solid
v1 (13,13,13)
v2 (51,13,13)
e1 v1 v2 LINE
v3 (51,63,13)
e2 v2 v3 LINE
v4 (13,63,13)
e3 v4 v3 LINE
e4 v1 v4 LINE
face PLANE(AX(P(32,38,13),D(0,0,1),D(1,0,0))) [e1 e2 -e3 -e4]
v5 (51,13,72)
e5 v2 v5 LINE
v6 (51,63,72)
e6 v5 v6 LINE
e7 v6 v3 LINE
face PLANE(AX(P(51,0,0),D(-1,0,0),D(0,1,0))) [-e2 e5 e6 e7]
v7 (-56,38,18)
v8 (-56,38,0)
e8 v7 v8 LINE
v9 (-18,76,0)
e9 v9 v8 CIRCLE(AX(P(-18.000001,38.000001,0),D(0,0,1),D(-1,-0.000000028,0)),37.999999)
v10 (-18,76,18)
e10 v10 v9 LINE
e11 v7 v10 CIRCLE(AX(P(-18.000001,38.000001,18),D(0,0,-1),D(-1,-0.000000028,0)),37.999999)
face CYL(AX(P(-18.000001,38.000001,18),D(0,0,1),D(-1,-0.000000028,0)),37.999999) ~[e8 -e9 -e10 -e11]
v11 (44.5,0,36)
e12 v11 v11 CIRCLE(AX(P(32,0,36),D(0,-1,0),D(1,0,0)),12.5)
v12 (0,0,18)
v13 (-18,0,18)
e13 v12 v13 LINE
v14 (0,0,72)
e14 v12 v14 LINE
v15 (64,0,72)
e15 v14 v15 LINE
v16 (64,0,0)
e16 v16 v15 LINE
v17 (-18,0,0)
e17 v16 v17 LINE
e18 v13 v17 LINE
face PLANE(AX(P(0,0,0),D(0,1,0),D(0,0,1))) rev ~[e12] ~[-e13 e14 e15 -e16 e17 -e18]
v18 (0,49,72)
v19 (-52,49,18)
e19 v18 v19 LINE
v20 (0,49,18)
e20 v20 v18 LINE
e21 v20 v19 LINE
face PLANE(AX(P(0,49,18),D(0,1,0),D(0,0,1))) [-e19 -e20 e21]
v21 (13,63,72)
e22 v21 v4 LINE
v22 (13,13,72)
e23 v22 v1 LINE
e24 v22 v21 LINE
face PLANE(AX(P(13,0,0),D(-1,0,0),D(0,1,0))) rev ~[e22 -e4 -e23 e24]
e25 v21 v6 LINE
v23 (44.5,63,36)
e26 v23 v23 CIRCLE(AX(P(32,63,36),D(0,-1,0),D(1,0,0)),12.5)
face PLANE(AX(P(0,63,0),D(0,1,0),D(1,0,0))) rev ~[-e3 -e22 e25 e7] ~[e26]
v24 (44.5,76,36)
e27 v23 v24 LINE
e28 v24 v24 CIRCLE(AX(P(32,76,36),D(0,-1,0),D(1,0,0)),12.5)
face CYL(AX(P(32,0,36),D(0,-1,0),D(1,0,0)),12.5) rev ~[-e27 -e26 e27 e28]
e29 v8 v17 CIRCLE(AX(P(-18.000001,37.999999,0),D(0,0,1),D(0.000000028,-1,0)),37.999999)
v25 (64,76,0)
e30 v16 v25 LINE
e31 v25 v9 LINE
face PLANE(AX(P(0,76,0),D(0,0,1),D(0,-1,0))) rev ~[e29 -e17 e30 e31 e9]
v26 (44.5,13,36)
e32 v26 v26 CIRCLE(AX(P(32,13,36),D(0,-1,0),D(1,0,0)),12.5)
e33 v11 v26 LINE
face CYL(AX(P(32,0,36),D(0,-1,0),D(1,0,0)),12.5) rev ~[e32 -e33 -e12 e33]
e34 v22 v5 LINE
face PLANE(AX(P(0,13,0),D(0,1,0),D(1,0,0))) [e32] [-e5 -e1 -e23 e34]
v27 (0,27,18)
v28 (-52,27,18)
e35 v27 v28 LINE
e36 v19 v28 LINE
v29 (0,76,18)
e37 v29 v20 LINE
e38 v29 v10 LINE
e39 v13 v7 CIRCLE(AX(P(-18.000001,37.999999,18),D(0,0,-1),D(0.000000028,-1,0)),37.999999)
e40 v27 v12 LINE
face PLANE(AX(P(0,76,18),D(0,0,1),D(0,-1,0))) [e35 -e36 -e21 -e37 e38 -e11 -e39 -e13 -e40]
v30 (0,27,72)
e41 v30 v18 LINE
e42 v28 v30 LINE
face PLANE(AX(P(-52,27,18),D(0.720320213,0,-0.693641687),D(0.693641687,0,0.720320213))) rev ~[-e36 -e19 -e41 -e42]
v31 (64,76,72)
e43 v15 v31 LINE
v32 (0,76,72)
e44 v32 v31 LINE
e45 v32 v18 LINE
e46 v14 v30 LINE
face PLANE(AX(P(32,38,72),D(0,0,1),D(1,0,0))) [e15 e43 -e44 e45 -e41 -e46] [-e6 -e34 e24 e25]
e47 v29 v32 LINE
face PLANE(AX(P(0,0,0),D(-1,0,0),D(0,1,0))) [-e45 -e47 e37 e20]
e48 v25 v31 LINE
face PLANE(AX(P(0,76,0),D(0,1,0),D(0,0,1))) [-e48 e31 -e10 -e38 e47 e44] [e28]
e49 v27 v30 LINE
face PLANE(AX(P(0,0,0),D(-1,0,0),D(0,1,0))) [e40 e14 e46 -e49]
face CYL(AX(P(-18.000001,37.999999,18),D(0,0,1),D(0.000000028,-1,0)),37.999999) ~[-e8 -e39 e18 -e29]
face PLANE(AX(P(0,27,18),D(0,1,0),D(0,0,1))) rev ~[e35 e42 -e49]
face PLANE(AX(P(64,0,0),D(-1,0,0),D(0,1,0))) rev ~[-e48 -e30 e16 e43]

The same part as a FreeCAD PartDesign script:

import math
import FreeCAD as App
import Part
import Sketcher
Q = App.Units.Quantity


def faces_at(feature, points):
    """Names of the faces that lie closest to the given points."""
    faces = feature.Shape.Faces
    near = lambda p: min(range(len(faces)), key=lambda i: faces[i].distToShape(Part.Vertex(*p))[0])
    return sorted({f"Face{near(p) + 1}" for p in points})

doc = App.newDocument("Part")
body = doc.addObject("PartDesign::Body", "Body")

sketch1 = body.newObject("Sketcher::SketchObject", "Sketch")
sketch1.AttachmentSupport = (doc.getObject("XY_Plane"), [""])
sketch1.MapMode = "FlatFace"
sketch1.addGeometry(Part.LineSegment(App.Vector(0, 76, 0), App.Vector(0, 0, 0)), False)
sketch1.addGeometry(Part.LineSegment(App.Vector(0, 0, 0), App.Vector(64, 0, 0)), False)
sketch1.addGeometry(Part.LineSegment(App.Vector(64, 0, 0), App.Vector(64, 76, 0)), False)
sketch1.addGeometry(Part.LineSegment(App.Vector(64, 76, 0), App.Vector(0, 76, 0)), False)
sketch1.addConstraint(Sketcher.Constraint("Coincident", 0, 2, 1, 1))
sketch1.addConstraint(Sketcher.Constraint("Coincident", 1, 2, 2, 1))
sketch1.addConstraint(Sketcher.Constraint("Coincident", 2, 2, 3, 1))
sketch1.addConstraint(Sketcher.Constraint("Coincident", 3, 2, 0, 1))
sketch1.addConstraint(Sketcher.Constraint("Vertical", 0))
sketch1.addConstraint(Sketcher.Constraint("Horizontal", 1))
sketch1.addConstraint(Sketcher.Constraint("Vertical", 2))
sketch1.addConstraint(Sketcher.Constraint("Horizontal", 3))
sketch1.addConstraint(Sketcher.Constraint("Coincident", 0, 2, -1, 1))
sketch1.addConstraint(Sketcher.Constraint("DistanceX", 1, 1, 1, 2, Q("64 mm")))
sketch1.addConstraint(Sketcher.Constraint("DistanceY", 0, 2, 0, 1, Q("76 mm")))
pad1 = body.newObject("PartDesign::Pad", "Pad")
pad1.Profile = sketch1
pad1.Length = 72
doc.recompute()

thickness = body.newObject("PartDesign::Thickness", "Thickness")
thickness.Base = (pad1, faces_at(pad1, [(32, 38, 72)]))
thickness.Value = 13
thickness.Reversed = True
thickness.Join = "Arc"

sketch2 = body.newObject("Sketcher::SketchObject", "Sketch001")
sketch2.AttachmentSupport = (doc.getObject("XZ_Plane"), [""])
sketch2.MapMode = "FlatFace"
sketch2.addGeometry(Part.Circle(App.Vector(32, 36, 0), App.Vector(0, 0, 1), 12), False)
sketch2.addConstraint(Sketcher.Constraint("Diameter", 0, Q("25 mm")))
sketch2.addConstraint(Sketcher.Constraint("DistanceX", -1, 1, 0, 3, Q("32 mm")))
sketch2.addConstraint(Sketcher.Constraint("DistanceY", -1, 1, 0, 3, Q("36 mm")))
pocket1 = body.newObject("PartDesign::Pocket", "Pocket")
pocket1.Profile = sketch2
pocket1.Length = 100

sketch3 = body.newObject("Sketcher::SketchObject", "Sketch002")
sketch3.AttachmentSupport = (doc.getObject("YZ_Plane"), [""])
sketch3.MapMode = "FlatFace"
sketch3.addGeometry(Part.LineSegment(App.Vector(76, 18, 0), App.Vector(76, 0, 0)), False)
sketch3.addGeometry(Part.LineSegment(App.Vector(76, 0, 0), App.Vector(0, 0, 0)), False)
sketch3.addGeometry(Part.LineSegment(App.Vector(0, 0, 0), App.Vector(0, 18, 0)), False)
sketch3.addGeometry(Part.LineSegment(App.Vector(0, 18, 0), App.Vector(76, 18, 0)), False)
sketch3.addConstraint(Sketcher.Constraint("Coincident", 0, 2, 1, 1))
sketch3.addConstraint(Sketcher.Constraint("Coincident", 1, 2, 2, 1))
sketch3.addConstraint(Sketcher.Constraint("Coincident", 2, 2, 3, 1))
sketch3.addConstraint(Sketcher.Constraint("Coincident", 3, 2, 0, 1))
sketch3.addConstraint(Sketcher.Constraint("Vertical", 0))
sketch3.addConstraint(Sketcher.Constraint("Horizontal", 1))
sketch3.addConstraint(Sketcher.Constraint("Vertical", 2))
sketch3.addConstraint(Sketcher.Constraint("Horizontal", 3))
sketch3.addConstraint(Sketcher.Constraint("Coincident", 1, 2, -1, 1))
sketch3.addConstraint(Sketcher.Constraint("DistanceX", 1, 2, 1, 1, Q("76 mm")))
sketch3.addConstraint(Sketcher.Constraint("DistanceY", 0, 2, 0, 1, Q("18 mm")))
pad2 = body.newObject("PartDesign::Pad", "Pad001")
pad2.Profile = sketch3
pad2.Length = 56
pad2.Reversed = True

sketch4 = body.newObject("Sketcher::SketchObject", "Sketch003")
sketch4.AttachmentSupport = (doc.getObject("XY_Plane"), [""])
sketch4.MapMode = "FlatFace"
sketch4.AttachmentOffset = App.Placement(App.Vector(0, 0, 18), App.Rotation())
sketch4.addGeometry(Part.ArcOfCircle(Part.Circle(App.Vector(-18, 38, 0), App.Vector(0, 0, 1), 38), math.radians(90), math.radians(180)), False)
sketch4.addGeometry(Part.LineSegment(App.Vector(-18, 76, 0), App.Vector(-56, 76, 0)), False)
sketch4.addGeometry(Part.LineSegment(App.Vector(-56, 76, 0), App.Vector(-56, 38, 0)), False)
sketch4.addGeometry(Part.ArcOfCircle(Part.Circle(App.Vector(-18, 38, 0), App.Vector(0, 0, 1), 38), math.radians(180), math.radians(270)), False)
sketch4.addGeometry(Part.LineSegment(App.Vector(-56, 38, 0), App.Vector(-56, 0, 0)), False)
sketch4.addGeometry(Part.LineSegment(App.Vector(-56, 0, 0), App.Vector(-18, 0, 0)), False)
sketch4.addConstraint(Sketcher.Constraint("Tangent", 0, 1, 1, 1))
sketch4.addConstraint(Sketcher.Constraint("Coincident", 1, 2, 2, 1))
sketch4.addConstraint(Sketcher.Constraint("Tangent", 2, 2, 0, 2))
sketch4.addConstraint(Sketcher.Constraint("Tangent", 3, 1, 4, 1))
sketch4.addConstraint(Sketcher.Constraint("Coincident", 4, 2, 5, 1))
sketch4.addConstraint(Sketcher.Constraint("Tangent", 5, 2, 3, 2))
sketch4.addConstraint(Sketcher.Constraint("Horizontal", 1))
sketch4.addConstraint(Sketcher.Constraint("Vertical", 2))
sketch4.addConstraint(Sketcher.Constraint("Vertical", 4))
sketch4.addConstraint(Sketcher.Constraint("Horizontal", 5))
sketch4.addConstraint(Sketcher.Constraint("Coincident", 3, 3, 0, 3))
sketch4.addConstraint(Sketcher.Constraint("Equal", 0, 3))
sketch4.addConstraint(Sketcher.Constraint("PointOnObject", 4, 2, -1))
sketch4.addConstraint(Sketcher.Constraint("Radius", 0, Q("37.999999 mm")))
sketch4.addConstraint(Sketcher.Constraint("DistanceX", 0, 3, -1, 1, Q("18.000001 mm")))
pocket2 = body.newObject("PartDesign::Pocket", "Pocket001")
pocket2.Profile = sketch4
pocket2.Length = 25

sketch5 = body.newObject("Sketcher::SketchObject", "Sketch004")
sketch5.AttachmentSupport = (doc.getObject("YZ_Plane"), [""])
sketch5.MapMode = "FlatFace"
sketch5.addGeometry(Part.LineSegment(App.Vector(49, 72, 0), App.Vector(49, 18, 0)), False)
sketch5.addGeometry(Part.LineSegment(App.Vector(49, 18, 0), App.Vector(27, 18, 0)), False)
sketch5.addGeometry(Part.LineSegment(App.Vector(27, 18, 0), App.Vector(27, 72, 0)), False)
sketch5.addGeometry(Part.LineSegment(App.Vector(27, 72, 0), App.Vector(49, 72, 0)), False)
sketch5.addConstraint(Sketcher.Constraint("Coincident", 0, 2, 1, 1))
sketch5.addConstraint(Sketcher.Constraint("Coincident", 1, 2, 2, 1))
sketch5.addConstraint(Sketcher.Constraint("Coincident", 2, 2, 3, 1))
sketch5.addConstraint(Sketcher.Constraint("Coincident", 3, 2, 0, 1))
sketch5.addConstraint(Sketcher.Constraint("Vertical", 0))
sketch5.addConstraint(Sketcher.Constraint("Horizontal", 1))
sketch5.addConstraint(Sketcher.Constraint("Vertical", 2))
sketch5.addConstraint(Sketcher.Constraint("Horizontal", 3))
sketch5.addConstraint(Sketcher.Constraint("DistanceX", 1, 2, 1, 1, Q("22 mm")))
sketch5.addConstraint(Sketcher.Constraint("DistanceY", 0, 2, 0, 1, Q("54 mm")))
sketch5.addConstraint(Sketcher.Constraint("DistanceX", -1, 1, 0, 2, Q("49 mm")))
sketch5.addConstraint(Sketcher.Constraint("DistanceY", -1, 1, 0, 2, Q("18 mm")))
pad3 = body.newObject("PartDesign::Pad", "Pad002")
pad3.Profile = sketch5
pad3.Length = 52
pad3.Reversed = True

sketch6 = body.newObject("Sketcher::SketchObject", "Sketch005")
sketch6.AttachmentSupport = (doc.getObject("XZ_Plane"), [""])
sketch6.MapMode = "FlatFace"
sketch6.AttachmentOffset = App.Placement(App.Vector(0, 0, -27), App.Rotation())
sketch6.addGeometry(Part.LineSegment(App.Vector(-52, 18, 0), App.Vector(0, 72, 0)), False)
sketch6.addGeometry(Part.LineSegment(App.Vector(0, 72, 0), App.Vector(-52, 72, 0)), False)
sketch6.addGeometry(Part.LineSegment(App.Vector(-52, 72, 0), App.Vector(-52, 18, 0)), False)
sketch6.addConstraint(Sketcher.Constraint("Coincident", 0, 2, 1, 1))
sketch6.addConstraint(Sketcher.Constraint("Coincident", 1, 2, 2, 1))
sketch6.addConstraint(Sketcher.Constraint("Coincident", 2, 2, 0, 1))
sketch6.addConstraint(Sketcher.Constraint("Horizontal", 1))
sketch6.addConstraint(Sketcher.Constraint("Vertical", 2))
sketch6.addConstraint(Sketcher.Constraint("PointOnObject", 0, 2, -2))
sketch6.addConstraint(Sketcher.Constraint("DistanceX", 1, 2, 1, 1, Q("52 mm")))
sketch6.addConstraint(Sketcher.Constraint("DistanceY", 2, 2, 2, 1, Q("54 mm")))
sketch6.addConstraint(Sketcher.Constraint("DistanceY", -1, 1, 0, 2, Q("72 mm")))
pocket3 = body.newObject("PartDesign::Pocket", "Pocket002")
pocket3.Profile = sketch6
pocket3.Length = 25

doc.recompute()
